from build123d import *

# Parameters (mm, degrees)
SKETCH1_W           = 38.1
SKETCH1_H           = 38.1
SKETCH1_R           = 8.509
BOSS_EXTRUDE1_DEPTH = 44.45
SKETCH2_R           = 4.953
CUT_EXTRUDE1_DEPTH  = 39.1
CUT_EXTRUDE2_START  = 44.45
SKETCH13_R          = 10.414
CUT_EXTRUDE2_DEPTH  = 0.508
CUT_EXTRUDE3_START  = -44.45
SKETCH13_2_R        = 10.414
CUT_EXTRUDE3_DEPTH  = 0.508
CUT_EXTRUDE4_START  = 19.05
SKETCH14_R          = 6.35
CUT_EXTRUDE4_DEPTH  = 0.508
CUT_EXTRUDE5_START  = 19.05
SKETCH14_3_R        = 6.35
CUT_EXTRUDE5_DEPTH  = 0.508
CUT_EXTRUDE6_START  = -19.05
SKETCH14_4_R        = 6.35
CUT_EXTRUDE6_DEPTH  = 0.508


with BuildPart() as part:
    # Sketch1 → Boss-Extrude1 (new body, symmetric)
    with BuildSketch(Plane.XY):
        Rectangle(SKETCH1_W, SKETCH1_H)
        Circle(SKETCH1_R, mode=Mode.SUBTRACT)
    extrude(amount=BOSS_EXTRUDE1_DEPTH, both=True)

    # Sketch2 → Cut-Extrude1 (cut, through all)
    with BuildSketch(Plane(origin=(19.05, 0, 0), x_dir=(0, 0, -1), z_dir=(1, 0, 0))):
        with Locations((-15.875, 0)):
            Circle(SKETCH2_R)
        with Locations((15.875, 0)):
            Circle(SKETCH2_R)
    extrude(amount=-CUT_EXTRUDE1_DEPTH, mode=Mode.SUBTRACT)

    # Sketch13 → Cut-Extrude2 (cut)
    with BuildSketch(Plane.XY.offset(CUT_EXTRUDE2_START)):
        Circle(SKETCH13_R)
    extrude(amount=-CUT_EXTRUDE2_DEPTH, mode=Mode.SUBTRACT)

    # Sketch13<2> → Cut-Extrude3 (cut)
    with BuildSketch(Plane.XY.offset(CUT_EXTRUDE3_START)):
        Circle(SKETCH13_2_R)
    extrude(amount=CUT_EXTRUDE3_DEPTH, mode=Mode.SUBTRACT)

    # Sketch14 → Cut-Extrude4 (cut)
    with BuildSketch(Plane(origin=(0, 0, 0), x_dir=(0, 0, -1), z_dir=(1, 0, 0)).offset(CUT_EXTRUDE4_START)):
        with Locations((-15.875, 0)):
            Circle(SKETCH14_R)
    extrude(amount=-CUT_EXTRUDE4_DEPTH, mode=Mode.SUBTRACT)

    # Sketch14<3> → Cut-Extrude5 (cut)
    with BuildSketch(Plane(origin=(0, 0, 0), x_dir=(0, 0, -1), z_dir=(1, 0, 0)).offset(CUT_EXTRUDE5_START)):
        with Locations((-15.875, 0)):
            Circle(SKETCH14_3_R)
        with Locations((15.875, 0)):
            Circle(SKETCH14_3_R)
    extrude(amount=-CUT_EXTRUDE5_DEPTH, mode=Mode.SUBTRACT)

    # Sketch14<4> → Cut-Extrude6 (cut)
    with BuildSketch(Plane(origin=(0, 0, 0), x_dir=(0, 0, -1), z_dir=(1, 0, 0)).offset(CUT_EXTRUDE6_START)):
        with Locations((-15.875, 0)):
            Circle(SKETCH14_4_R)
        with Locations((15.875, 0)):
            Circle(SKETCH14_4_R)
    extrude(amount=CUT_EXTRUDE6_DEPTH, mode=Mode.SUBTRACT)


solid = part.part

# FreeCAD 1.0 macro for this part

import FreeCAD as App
import Part
import Sketcher

V = App.Vector
Q = App.Units.Quantity


def add_polygon(sketch, points):
    """Adds a closed chain of lines whose ends are joined by coincident constraints."""
    first, n = sketch.GeometryCount, len(points)
    for a, b in zip(points, points[1:] + points[:1]):
        sketch.addGeometry(Part.LineSegment(App.Vector(*a, 0), App.Vector(*b, 0)), False)
    for i in range(n):
        sketch.addConstraint(Sketcher.Constraint("Coincident", first + i, 2, first + (i + 1) % n, 1))

doc = App.newDocument("Part")
params = doc.addObject("Spreadsheet::Sheet", "Params")
for row, (alias, value) in enumerate([
    ("sketch1_diameter", "0.67 in"),
    ("sketch1_width", "1.5 in"),
    ("pad1_length", "3.5 in"),
    ("sketch2_diameter", "0.39 in"),
    ("sketch3_diameter", "0.82 in"),
    ("pocket2_length", "0.02 in"),
    ("sketch4_diameter", "0.82 in"),
    ("pocket3_length", "0.02 in"),
    ("sketch5_diameter", "0.5 in"),
    ("pocket4_length", "0.02 in"),
    ("sketch6_diameter", "0.5 in"),
    ("pocket5_length", "0.02 in"),
    ("sketch7_diameter", "0.5 in"),
    ("pocket6_length", "0.02 in"),
], start=1):
    params.set(f"A{row}", alias)
    params.set(f"B{row}", "=" + value)
    params.setAlias(f"B{row}", alias)

body = doc.addObject("PartDesign::Body", "Body")

# Sketch on XY plane
sketch1 = body.newObject("Sketcher::SketchObject", "Sketch")
sketch1.AttachmentSupport = (doc.getObject("XY_Plane"), [""])
sketch1.MapMode = "FlatFace"
add_polygon(sketch1, [(-19, 19), (-19, -19), (19, -19), (19, 19)])  # lines 0-3
sketch1.addGeometry(Part.Circle(V(0, 0, 0), V(0, 0, 1), 9), False)  # 4
sketch1.addConstraint([
    Sketcher.Constraint("Vertical", 0),
    Sketcher.Constraint("Horizontal", 1),
    Sketcher.Constraint("Vertical", 2),
    Sketcher.Constraint("Horizontal", 3),
    Sketcher.Constraint("Coincident", 4, 3, -1, 1),
    Sketcher.Constraint("Symmetric", 0, 2, 2, 2, -1, 1),
    Sketcher.Constraint("Equal", 3, 0),
    Sketcher.Constraint("Diameter", 4, Q("0.67 in")),
    Sketcher.Constraint("DistanceX", 1, 1, 1, 2, Q("1.5 in")),
])
sketch1.setExpression("Constraints[11]", "Params.sketch1_diameter")
sketch1.setExpression("Constraints[12]", "Params.sketch1_width")
pad1 = body.newObject("PartDesign::Pad", "Pad")
pad1.Profile = sketch1
pad1.setExpression("Length", "Params.pad1_length")
pad1.Midplane = True

# Sketch on YZ plane
sketch2 = body.newObject("Sketcher::SketchObject", "Sketch001")
sketch2.AttachmentSupport = (doc.getObject("YZ_Plane"), [""])
sketch2.MapMode = "FlatFace"
sketch2.AttachmentOffset = App.Placement(V(0, 0, 0.75 * 25.4), App.Rotation())
sketch2.addGeometry([
    Part.Circle(V(0, 15.9, 0), V(0, 0, 1), 5),
    Part.Circle(V(0, -15.9, 0), V(0, 0, 1), 5),
], False)
sketch2.addConstraint([
    Sketcher.Constraint("Equal", 0, 1),
    Sketcher.Constraint("Symmetric", 0, 3, 1, 3, -1, 1),
    Sketcher.Constraint("PointOnObject", 0, 3, -2),
    Sketcher.Constraint("Diameter", 0, Q("0.39 in")),
    Sketcher.Constraint("DistanceY", 1, 3, 0, 3, Q("1.25 in")),
])
sketch2.setExpression("Constraints[3]", "Params.sketch2_diameter")
pocket1 = body.newObject("PartDesign::Pocket", "Pocket")
pocket1.Profile = sketch2
pocket1.Type = "ThroughAll"

# Sketch on XY plane
sketch3 = body.newObject("Sketcher::SketchObject", "Sketch002")
sketch3.AttachmentSupport = (doc.getObject("XY_Plane"), [""])
sketch3.MapMode = "FlatFace"
sketch3.AttachmentOffset = App.Placement(V(0, 0, 1.75 * 25.4), App.Rotation())
sketch3.addGeometry(Part.Circle(V(0, 0, 0), V(0, 0, 1), 10), False)
sketch3.addConstraint([
    Sketcher.Constraint("Coincident", 0, 3, -1, 1),
    Sketcher.Constraint("Diameter", 0, Q("0.82 in")),
])
sketch3.setExpression("Constraints[1]", "Params.sketch3_diameter")
pocket2 = body.newObject("PartDesign::Pocket", "Pocket001")
pocket2.Profile = sketch3
pocket2.setExpression("Length", "Params.pocket2_length")

# Sketch on XY plane
sketch4 = body.newObject("Sketcher::SketchObject", "Sketch003")
sketch4.AttachmentSupport = (doc.getObject("XY_Plane"), [""])
sketch4.MapMode = "FlatFace"
sketch4.AttachmentOffset = App.Placement(V(0, 0, -1.75 * 25.4), App.Rotation())
sketch4.addGeometry(Part.Circle(V(0, 0, 0), V(0, 0, 1), 10), False)
sketch4.addConstraint([
    Sketcher.Constraint("Coincident", 0, 3, -1, 1),
    Sketcher.Constraint("Diameter", 0, Q("0.82 in")),
])
sketch4.setExpression("Constraints[1]", "Params.sketch4_diameter")
pocket3 = body.newObject("PartDesign::Pocket", "Pocket002")
pocket3.Profile = sketch4
pocket3.setExpression("Length", "Params.pocket3_length")
pocket3.Reversed = True

# Sketch on YZ plane
sketch5 = body.newObject("Sketcher::SketchObject", "Sketch004")
sketch5.AttachmentSupport = (doc.getObject("YZ_Plane"), [""])
sketch5.MapMode = "FlatFace"
sketch5.AttachmentOffset = App.Placement(V(0, 0, 0.75 * 25.4), App.Rotation())
sketch5.addGeometry(Part.Circle(V(0, 16, 0), V(0, 0, 1), 6), False)
sketch5.addConstraint([
    Sketcher.Constraint("PointOnObject", 0, 3, -2),
    Sketcher.Constraint("Diameter", 0, Q("0.5 in")),
    Sketcher.Constraint("DistanceY", -1, 1, 0, 3, Q("0.625 in")),
])
sketch5.setExpression("Constraints[1]", "Params.sketch5_diameter")
pocket4 = body.newObject("PartDesign::Pocket", "Pocket003")
pocket4.Profile = sketch5
pocket4.setExpression("Length", "Params.pocket4_length")

# Sketch on YZ plane
sketch6 = body.newObject("Sketcher::SketchObject", "Sketch005")
sketch6.AttachmentSupport = (doc.getObject("YZ_Plane"), [""])
sketch6.MapMode = "FlatFace"
sketch6.AttachmentOffset = App.Placement(V(0, 0, 0.75 * 25.4), App.Rotation())
sketch6.addGeometry([
    Part.Circle(V(0, 16, 0), V(0, 0, 1), 6),
    Part.Circle(V(0, -16, 0), V(0, 0, 1), 6),
], False)
sketch6.addConstraint([
    Sketcher.Constraint("Equal", 0, 1),
    Sketcher.Constraint("Symmetric", 0, 3, 1, 3, -1, 1),
    Sketcher.Constraint("PointOnObject", 0, 3, -2),
    Sketcher.Constraint("Diameter", 0, Q("0.5 in")),
    Sketcher.Constraint("DistanceY", 1, 3, 0, 3, Q("1.25 in")),
])
sketch6.setExpression("Constraints[3]", "Params.sketch6_diameter")
pocket5 = body.newObject("PartDesign::Pocket", "Pocket004")
pocket5.Profile = sketch6
pocket5.setExpression("Length", "Params.pocket5_length")

# Sketch on YZ plane
sketch7 = body.newObject("Sketcher::SketchObject", "Sketch006")
sketch7.AttachmentSupport = (doc.getObject("YZ_Plane"), [""])
sketch7.MapMode = "FlatFace"
sketch7.AttachmentOffset = App.Placement(V(0, 0, -0.75 * 25.4), App.Rotation())
sketch7.addGeometry([
    Part.Circle(V(0, 16, 0), V(0, 0, 1), 6),
    Part.Circle(V(0, -16, 0), V(0, 0, 1), 6),
], False)
sketch7.addConstraint([
    Sketcher.Constraint("Equal", 0, 1),
    Sketcher.Constraint("Symmetric", 0, 3, 1, 3, -1, 1),
    Sketcher.Constraint("PointOnObject", 0, 3, -2),
    Sketcher.Constraint("Diameter", 0, Q("0.5 in")),
    Sketcher.Constraint("DistanceY", 1, 3, 0, 3, Q("1.25 in")),
])
sketch7.setExpression("Constraints[3]", "Params.sketch7_diameter")
pocket6 = body.newObject("PartDesign::Pocket", "Pocket005")
pocket6.Profile = sketch7
pocket6.setExpression("Length", "Params.pocket6_length")
pocket6.Reversed = True

doc.recompute()
